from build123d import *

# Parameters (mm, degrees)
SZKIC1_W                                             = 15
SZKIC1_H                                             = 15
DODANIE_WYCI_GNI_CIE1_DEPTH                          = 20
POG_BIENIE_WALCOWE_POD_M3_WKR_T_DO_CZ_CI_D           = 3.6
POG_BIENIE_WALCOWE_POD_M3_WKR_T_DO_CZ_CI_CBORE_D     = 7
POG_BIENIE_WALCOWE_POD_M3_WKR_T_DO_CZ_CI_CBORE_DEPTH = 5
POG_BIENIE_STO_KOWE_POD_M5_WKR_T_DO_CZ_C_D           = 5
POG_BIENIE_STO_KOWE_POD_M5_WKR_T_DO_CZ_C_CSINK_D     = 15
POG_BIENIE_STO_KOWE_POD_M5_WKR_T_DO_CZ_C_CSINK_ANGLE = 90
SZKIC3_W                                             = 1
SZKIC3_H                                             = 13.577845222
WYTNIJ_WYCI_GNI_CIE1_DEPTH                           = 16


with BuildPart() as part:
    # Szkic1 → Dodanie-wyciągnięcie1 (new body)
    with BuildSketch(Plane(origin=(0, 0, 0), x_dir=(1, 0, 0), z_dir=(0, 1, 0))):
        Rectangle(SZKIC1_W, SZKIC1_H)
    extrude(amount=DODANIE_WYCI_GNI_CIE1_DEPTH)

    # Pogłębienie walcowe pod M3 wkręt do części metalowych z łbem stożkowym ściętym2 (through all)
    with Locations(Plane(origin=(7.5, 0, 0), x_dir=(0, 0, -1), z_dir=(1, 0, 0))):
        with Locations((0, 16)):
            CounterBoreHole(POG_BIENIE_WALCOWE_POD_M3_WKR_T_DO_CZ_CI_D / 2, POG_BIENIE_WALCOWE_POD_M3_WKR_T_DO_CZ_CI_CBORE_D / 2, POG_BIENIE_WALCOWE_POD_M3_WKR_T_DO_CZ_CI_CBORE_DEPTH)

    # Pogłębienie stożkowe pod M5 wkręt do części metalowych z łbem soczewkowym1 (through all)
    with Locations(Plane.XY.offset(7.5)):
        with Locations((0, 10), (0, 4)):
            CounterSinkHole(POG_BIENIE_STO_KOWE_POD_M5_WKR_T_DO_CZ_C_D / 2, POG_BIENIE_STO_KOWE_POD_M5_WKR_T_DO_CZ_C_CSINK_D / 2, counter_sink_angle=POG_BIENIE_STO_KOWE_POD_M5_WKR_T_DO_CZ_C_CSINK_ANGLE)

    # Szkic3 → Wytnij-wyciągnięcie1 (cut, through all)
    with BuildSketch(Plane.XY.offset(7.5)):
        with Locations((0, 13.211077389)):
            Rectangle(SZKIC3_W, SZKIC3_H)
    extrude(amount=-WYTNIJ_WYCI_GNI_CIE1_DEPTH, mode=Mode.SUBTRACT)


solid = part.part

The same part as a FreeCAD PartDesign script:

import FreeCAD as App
import Part
import Sketcher

V = App.Vector

doc = App.newDocument("Part")
body = doc.addObject("PartDesign::Body", "Body")

# Sketch on XZ plane
sketch1 = body.newObject("Sketcher::SketchObject", "Sketch")
sketch1.AttachmentSupport = (doc.getObject("XZ_Plane"), [""])
sketch1.MapMode = "FlatFace"
sketch1.addGeometry([
    Part.LineSegment(V(-8, -8, 0), V(-8, 8, 0)),
    Part.LineSegment(V(-8, 8, 0), V(8, 8, 0)),
    Part.LineSegment(V(8, 8, 0), V(8, -8, 0)),
    Part.LineSegment(V(8, -8, 0), V(-8, -8, 0)),
], False)
sketch1.addConstraint([
    Sketcher.Constraint("Coincident", 0, 2, 1, 1),
    Sketcher.Constraint("Coincident", 1, 2, 2, 1),
    Sketcher.Constraint("Coincident", 2, 2, 3, 1),
    Sketcher.Constraint("Coincident", 3, 2, 0, 1),
    Sketcher.Constraint("Vertical", 0),
    Sketcher.Constraint("Horizontal", 1),
    Sketcher.Constraint("Vertical", 2),
    Sketcher.Constraint("Horizontal", 3),
    Sketcher.Constraint("Symmetric", 0, 2, 2, 2, -1, 1),
    Sketcher.Constraint("Equal", 3, 0),
    Sketcher.Constraint("DistanceX", 1, 1, 1, 2, 15.0),
])
pad1 = body.newObject("PartDesign::Pad", "Pad")
pad1.Profile = sketch1
pad1.Length = 20
pad1.Reversed = True

# Sketch on YZ plane
sketch2 = body.newObject("Sketcher::SketchObject", "Sketch001")
sketch2.AttachmentSupport = (doc.getObject("YZ_Plane"), [""])
sketch2.MapMode = "FlatFace"
sketch2.AttachmentOffset = App.Placement(V(0, 0, 7.5), App.Rotation())
sketch2.addGeometry(Part.Circle(V(16, 0, 0), V(0, 0, 1), 1.8), False)
sketch2.addConstraint([
    Sketcher.Constraint("PointOnObject", 0, 3, -1),
    Sketcher.Constraint("Diameter", 0, 3.6),
    Sketcher.Constraint("DistanceX", -1, 1, 0, 3, 16.0),
])
doc.recompute()
hole = body.newObject("PartDesign::Hole", "Hole")
hole.Profile = sketch2
hole.ThreadType = "None"
hole.Diameter = 3.6
hole.DepthType = "ThroughAll"
hole.HoleCutType = "Counterbore"
hole.HoleCutDiameter = 7
hole.HoleCutDepth = 5

# Sketch on XY plane
sketch3 = body.newObject("Sketcher::SketchObject", "Sketch002")
sketch3.AttachmentSupport = (doc.getObject("XY_Plane"), [""])
sketch3.MapMode = "FlatFace"
sketch3.AttachmentOffset = App.Placement(V(0, 0, 7.5), App.Rotation())
sketch3.addGeometry([
    Part.Circle(V(0, 10, 0), V(0, 0, 1), 2.5),
    Part.Circle(V(0, 4, 0), V(0, 0, 1), 2.5),
], False)
sketch3.addConstraint([
    Sketcher.Constraint("Equal", 0, 1),
    Sketcher.Constraint("PointOnObject", 0, 3, -2),
    Sketcher.Constraint("PointOnObject", 1, 3, -2),
    Sketcher.Constraint("Diameter", 0, 5.0),
    Sketcher.Constraint("DistanceY", -1, 1, 0, 3, 10.0),
    Sketcher.Constraint("DistanceY", -1, 1, 1, 3, 4.0),
])
doc.recompute()
hole2 = body.newObject("PartDesign::Hole", "Hole001")
hole2.Profile = sketch3
hole2.ThreadType = "None"
hole2.Diameter = 5
hole2.DepthType = "ThroughAll"
hole2.HoleCutType = "Countersink"
hole2.HoleCutDiameter = 15
hole2.HoleCutCountersinkAngle = 90

# Sketch on XY plane
sketch4 = body.newObject("Sketcher::SketchObject", "Sketch003")
sketch4.AttachmentSupport = (doc.getObject("XY_Plane"), [""])
sketch4.MapMode = "FlatFace"
sketch4.AttachmentOffset = App.Placement(V(0, 0, 7.5), App.Rotation())
sketch4.addGeometry([
    Part.LineSegment(V(-0.5, 20, 0), V(-0.5, 6.4, 0)),
    Part.LineSegment(V(-0.5, 6.4, 0), V(0.5, 6.4, 0)),
    Part.LineSegment(V(0.5, 6.4, 0), V(0.5, 20, 0)),
    Part.LineSegment(V(0.5, 20, 0), V(-0.5, 20, 0)),
], False)
sketch4.addConstraint([
    Sketcher.Constraint("Coincident", 0, 2, 1, 1),
    Sketcher.Constraint("Coincident", 1, 2, 2, 1),
    Sketcher.Constraint("Coincident", 2, 2, 3, 1),
    Sketcher.Constraint("Coincident", 3, 2, 0, 1),
    Sketcher.Constraint("Vertical", 0),
    Sketcher.Constraint("Horizontal", 1),
    Sketcher.Constraint("Vertical", 2),
    Sketcher.Constraint("Horizontal", 3),
    Sketcher.Constraint("DistanceX", 1, 1, 1, 2, 1.0),
    Sketcher.Constraint("DistanceY", -1, 1, 2, 2, 20.0),
    Sketcher.Constraint("DistanceX", 0, 2, -1, 1, 0.5),
    Sketcher.Constraint("DistanceY", 0, 2, 0, 1, 13.577845),
])
pocket1 = body.newObject("PartDesign::Pocket", "Pocket")
pocket1.Profile = sketch4
pocket1.Type = "ThroughAll"

doc.recompute()
